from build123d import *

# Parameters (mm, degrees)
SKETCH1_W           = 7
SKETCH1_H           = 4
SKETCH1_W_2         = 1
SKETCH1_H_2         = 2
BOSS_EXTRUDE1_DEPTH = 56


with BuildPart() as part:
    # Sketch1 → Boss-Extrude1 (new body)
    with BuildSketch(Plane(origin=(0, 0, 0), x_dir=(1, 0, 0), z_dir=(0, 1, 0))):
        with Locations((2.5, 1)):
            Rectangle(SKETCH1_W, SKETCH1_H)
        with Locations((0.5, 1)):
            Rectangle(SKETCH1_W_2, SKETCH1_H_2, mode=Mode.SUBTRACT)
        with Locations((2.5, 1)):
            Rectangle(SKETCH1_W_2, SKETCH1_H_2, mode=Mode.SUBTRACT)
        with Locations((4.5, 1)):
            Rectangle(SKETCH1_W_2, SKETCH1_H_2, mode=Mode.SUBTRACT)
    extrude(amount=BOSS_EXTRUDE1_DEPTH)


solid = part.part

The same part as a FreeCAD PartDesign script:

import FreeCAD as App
import Part
import Sketcher
from FreeCAD import Vector
Q = App.Units.Quantity


def add_polygon(sketch, points):
    """Adds a closed chain of lines whose ends are joined by coincident constraints."""
    first, n = sketch.GeometryCount, len(points)
    for a, b in zip(points, points[1:] + points[:1]):
        sketch.addGeometry(Part.LineSegment(App.Vector(*a, 0), App.Vector(*b, 0)), False)
    for i in range(n):
        sketch.addConstraint(Sketcher.Constraint("Coincident", first + i, 2, first + (i + 1) % n, 1))

doc = App.newDocument("Part")
body = doc.addObject("PartDesign::Body", "Body")

# Sketch on XZ plane
sketch1 = doc.addObject("Sketcher::SketchObject", "Sketch")
body.addObject(sketch1)
sketch1.AttachmentSupport = (doc.XZ_Plane, [""])
sketch1.MapMode = "FlatFace"
add_polygon(sketch1, [(-1, -3), (-1, 1), (6, 1), (6, -3)])  # lines 0-3
add_polygon(sketch1, [(1, 0), (0, 0), (0, -2), (1, -2)])  # lines 4-7
add_polygon(sketch1, [(3, 0), (2, 0), (2, -2), (3, -2)])  # lines 8-11
add_polygon(sketch1, [(5, 0), (4, 0), (4, -2), (5, -2)])  # lines 12-15
sketch1.addConstraint(Sketcher.Constraint("Vertical", 0))
sketch1.addConstraint(Sketcher.Constraint("Horizontal", 1))
sketch1.addConstraint(Sketcher.Constraint("Vertical", 2))
sketch1.addConstraint(Sketcher.Constraint("Horizontal", 3))
sketch1.addConstraint(Sketcher.Constraint("Horizontal", 4))
sketch1.addConstraint(Sketcher.Constraint("Vertical", 5))
sketch1.addConstraint(Sketcher.Constraint("Horizontal", 6))
sketch1.addConstraint(Sketcher.Constraint("Vertical", 7))
sketch1.addConstraint(Sketcher.Constraint("Horizontal", 8))
sketch1.addConstraint(Sketcher.Constraint("Vertical", 9))
sketch1.addConstraint(Sketcher.Constraint("Horizontal", 10))
sketch1.addConstraint(Sketcher.Constraint("Vertical", 11))
sketch1.addConstraint(Sketcher.Constraint("Horizontal", 12))
sketch1.addConstraint(Sketcher.Constraint("Vertical", 13))
sketch1.addConstraint(Sketcher.Constraint("Horizontal", 14))
sketch1.addConstraint(Sketcher.Constraint("Vertical", 15))
sketch1.addConstraint(Sketcher.Constraint("Coincident", 4, 2, -1, 1))
sketch1.addConstraint(Sketcher.Constraint("PointOnObject", 8, 2, -1))
sketch1.addConstraint(Sketcher.Constraint("PointOnObject", 12, 2, -1))
sketch1.addConstraint(Sketcher.Constraint("Horizontal", 6, 2, 9, 2))
sketch1.addConstraint(Sketcher.Constraint("Horizontal", 10, 2, 13, 2))
sketch1.addConstraint(Sketcher.Constraint("Equal", 6, 8))
sketch1.addConstraint(Sketcher.Constraint("Equal", 10, 12))
sketch1.addConstraint(Sketcher.Constraint("DistanceX", 1, 1, 1, 2, Q("7 mm")))
sketch1.addConstraint(Sketcher.Constraint("DistanceX", 4, 2, 4, 1, Q("1 mm")))
sketch1.addConstraint(Sketcher.Constraint("DistanceY", 0, 1, 0, 2, Q("4 mm")))
sketch1.addConstraint(Sketcher.Constraint("DistanceY", 5, 2, 5, 1, Q("2 mm")))
sketch1.addConstraint(Sketcher.Constraint("DistanceX", 0, 2, -1, 1, Q("1 mm")))
sketch1.addConstraint(Sketcher.Constraint("DistanceY", -1, 1, 0, 2, Q("1 mm")))
sketch1.addConstraint(Sketcher.Constraint("DistanceX", -1, 1, 8, 2, Q("2 mm")))
sketch1.addConstraint(Sketcher.Constraint("DistanceX", -1, 1, 12, 2, Q("4 mm")))
pad1 = doc.addObject("PartDesign::Pad", "Pad")
body.addObject(pad1)
pad1.Profile = sketch1
pad1.Length = 56
pad1.Reversed = True

doc.recompute()
